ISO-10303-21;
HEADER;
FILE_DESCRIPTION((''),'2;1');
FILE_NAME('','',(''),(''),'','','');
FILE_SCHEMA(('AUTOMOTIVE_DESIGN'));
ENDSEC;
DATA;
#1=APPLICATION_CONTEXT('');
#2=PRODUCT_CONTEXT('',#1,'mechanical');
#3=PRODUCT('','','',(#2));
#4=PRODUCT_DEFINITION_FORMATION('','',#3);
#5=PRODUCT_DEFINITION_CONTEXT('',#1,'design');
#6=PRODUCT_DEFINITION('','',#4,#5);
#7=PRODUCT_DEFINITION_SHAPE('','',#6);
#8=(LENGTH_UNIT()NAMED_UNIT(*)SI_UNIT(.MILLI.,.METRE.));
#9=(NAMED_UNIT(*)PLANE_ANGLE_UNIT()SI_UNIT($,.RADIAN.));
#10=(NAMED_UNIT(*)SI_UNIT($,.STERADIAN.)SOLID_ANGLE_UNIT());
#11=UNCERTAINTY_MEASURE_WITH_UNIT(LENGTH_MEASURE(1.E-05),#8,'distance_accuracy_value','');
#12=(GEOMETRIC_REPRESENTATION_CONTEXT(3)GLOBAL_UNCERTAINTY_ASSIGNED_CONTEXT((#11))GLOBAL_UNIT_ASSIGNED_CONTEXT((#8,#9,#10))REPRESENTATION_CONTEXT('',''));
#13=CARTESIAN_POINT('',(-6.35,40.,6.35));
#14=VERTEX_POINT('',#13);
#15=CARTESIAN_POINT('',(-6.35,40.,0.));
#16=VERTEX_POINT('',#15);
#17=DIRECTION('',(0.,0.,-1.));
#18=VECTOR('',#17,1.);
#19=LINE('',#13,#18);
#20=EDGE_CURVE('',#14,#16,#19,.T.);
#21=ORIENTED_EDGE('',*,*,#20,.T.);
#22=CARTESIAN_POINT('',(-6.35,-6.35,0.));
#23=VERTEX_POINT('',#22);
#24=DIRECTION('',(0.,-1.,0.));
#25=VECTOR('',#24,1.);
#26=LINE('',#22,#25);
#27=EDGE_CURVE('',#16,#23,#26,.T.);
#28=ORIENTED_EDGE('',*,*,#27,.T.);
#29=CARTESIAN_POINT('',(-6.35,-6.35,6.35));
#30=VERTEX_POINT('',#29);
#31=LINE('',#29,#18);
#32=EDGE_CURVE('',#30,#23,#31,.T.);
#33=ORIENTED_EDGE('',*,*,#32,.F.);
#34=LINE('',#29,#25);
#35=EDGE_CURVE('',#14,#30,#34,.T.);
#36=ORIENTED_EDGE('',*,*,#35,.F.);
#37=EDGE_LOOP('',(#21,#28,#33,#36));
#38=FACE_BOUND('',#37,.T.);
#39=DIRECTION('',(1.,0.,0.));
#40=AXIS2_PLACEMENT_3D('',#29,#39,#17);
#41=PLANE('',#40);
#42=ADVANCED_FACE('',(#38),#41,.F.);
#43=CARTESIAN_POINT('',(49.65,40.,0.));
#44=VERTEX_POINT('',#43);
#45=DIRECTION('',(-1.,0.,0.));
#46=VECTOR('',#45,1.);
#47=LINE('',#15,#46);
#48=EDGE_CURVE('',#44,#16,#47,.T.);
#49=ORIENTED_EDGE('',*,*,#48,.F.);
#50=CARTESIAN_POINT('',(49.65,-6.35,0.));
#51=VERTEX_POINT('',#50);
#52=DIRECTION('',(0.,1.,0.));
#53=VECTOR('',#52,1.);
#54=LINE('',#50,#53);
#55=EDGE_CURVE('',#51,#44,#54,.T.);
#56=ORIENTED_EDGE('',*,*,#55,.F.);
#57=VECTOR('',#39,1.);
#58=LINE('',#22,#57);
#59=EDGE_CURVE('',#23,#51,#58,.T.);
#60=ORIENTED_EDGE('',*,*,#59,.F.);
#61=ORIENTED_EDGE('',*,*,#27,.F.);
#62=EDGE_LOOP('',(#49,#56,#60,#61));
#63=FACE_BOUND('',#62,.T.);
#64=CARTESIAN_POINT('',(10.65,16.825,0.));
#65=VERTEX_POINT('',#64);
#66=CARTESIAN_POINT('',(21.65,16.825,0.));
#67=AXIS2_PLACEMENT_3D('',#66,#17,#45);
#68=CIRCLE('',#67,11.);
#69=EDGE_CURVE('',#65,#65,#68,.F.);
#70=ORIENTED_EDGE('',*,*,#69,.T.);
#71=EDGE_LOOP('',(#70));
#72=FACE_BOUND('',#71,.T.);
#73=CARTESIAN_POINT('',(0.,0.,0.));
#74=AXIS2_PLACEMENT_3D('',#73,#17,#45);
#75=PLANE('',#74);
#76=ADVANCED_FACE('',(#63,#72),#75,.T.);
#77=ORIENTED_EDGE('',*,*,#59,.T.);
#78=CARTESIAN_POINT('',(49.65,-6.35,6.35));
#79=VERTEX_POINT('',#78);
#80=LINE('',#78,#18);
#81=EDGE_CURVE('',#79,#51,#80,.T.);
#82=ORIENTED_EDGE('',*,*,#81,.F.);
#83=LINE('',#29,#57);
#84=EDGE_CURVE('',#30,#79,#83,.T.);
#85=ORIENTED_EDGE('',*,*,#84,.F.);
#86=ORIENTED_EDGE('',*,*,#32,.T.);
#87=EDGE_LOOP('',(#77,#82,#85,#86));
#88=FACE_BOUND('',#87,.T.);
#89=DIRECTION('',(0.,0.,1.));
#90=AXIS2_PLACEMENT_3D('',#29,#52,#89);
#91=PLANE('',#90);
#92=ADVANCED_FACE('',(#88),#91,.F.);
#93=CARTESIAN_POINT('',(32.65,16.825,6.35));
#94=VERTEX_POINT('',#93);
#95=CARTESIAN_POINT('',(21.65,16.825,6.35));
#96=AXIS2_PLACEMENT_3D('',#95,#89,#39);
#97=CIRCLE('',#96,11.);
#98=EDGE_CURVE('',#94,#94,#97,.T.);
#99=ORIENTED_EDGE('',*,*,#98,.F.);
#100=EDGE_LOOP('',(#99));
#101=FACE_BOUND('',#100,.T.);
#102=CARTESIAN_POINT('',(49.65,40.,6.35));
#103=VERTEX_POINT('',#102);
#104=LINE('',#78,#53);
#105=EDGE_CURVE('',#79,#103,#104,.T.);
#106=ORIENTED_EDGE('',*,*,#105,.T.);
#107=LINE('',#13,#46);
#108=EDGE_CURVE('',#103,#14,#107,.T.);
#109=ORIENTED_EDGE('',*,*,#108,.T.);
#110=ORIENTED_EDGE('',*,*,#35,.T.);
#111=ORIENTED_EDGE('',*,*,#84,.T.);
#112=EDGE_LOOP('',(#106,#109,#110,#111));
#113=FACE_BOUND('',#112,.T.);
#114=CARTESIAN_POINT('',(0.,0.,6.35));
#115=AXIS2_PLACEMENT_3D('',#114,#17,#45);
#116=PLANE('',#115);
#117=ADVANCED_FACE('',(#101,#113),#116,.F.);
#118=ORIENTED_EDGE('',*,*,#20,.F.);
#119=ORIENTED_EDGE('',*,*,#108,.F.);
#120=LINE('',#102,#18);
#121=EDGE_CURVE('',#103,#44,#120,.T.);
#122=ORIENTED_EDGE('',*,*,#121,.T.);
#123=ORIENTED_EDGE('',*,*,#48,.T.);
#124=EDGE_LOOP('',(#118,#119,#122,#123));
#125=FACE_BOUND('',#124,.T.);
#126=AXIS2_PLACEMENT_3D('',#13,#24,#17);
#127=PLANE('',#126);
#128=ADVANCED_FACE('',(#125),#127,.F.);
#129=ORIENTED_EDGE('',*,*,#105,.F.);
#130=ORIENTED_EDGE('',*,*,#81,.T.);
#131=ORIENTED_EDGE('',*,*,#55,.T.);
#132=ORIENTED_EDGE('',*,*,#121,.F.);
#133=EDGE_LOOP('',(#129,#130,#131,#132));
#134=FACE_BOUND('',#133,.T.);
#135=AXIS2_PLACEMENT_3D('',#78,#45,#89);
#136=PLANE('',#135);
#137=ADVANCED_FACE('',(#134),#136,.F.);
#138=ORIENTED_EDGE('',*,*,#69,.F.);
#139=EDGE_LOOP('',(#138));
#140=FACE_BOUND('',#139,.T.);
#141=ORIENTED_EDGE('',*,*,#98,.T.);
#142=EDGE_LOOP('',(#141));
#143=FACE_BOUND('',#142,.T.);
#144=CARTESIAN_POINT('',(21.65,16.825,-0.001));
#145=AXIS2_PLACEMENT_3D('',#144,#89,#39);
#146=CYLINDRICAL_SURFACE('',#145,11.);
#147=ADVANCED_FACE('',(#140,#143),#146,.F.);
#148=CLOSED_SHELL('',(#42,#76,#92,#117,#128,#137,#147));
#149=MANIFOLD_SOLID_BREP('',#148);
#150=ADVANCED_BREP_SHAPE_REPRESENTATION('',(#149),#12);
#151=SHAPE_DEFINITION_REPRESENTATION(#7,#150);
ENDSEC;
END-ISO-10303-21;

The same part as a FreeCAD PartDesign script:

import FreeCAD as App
import Part
import Sketcher

V = App.Vector


def add_polygon(sketch, points):
    """Adds a closed chain of lines whose ends are joined by coincident constraints."""
    first, n = sketch.GeometryCount, len(points)
    for a, b in zip(points, points[1:] + points[:1]):
        sketch.addGeometry(Part.LineSegment(App.Vector(*a, 0), App.Vector(*b, 0)), False)
    for i in range(n):
        sketch.addConstraint(Sketcher.Constraint("Coincident", first + i, 2, first + (i + 1) % n, 1))

doc = App.newDocument("Part")
params = doc.addObject("Spreadsheet::Sheet", "Params")
for row, (alias, value) in enumerate([
    ("sketch1_width", "56 mm"),
    ("sketch1_height", "46.35 mm"),
    ("pad1_length", "6.35 mm"),
    ("sketch2_diameter", "22 mm"),
], start=1):
    params.set(f"A{row}", alias)
    params.set(f"B{row}", "=" + value)
    params.setAlias(f"B{row}", alias)

body = doc.addObject("PartDesign::Body", "Body")

# Sketch on XY plane
sketch1 = body.newObject("Sketcher::SketchObject", "Sketch")
sketch1.AttachmentSupport = (doc.getObject("XY_Plane"), [""])
sketch1.MapMode = "FlatFace"
add_polygon(sketch1, [(-6.35, 40), (-6.35, -6.35), (49.65, -6.35), (49.65, 40)])  # lines 0-3
sketch1.addConstraint(Sketcher.Constraint("Vertical", 0))
sketch1.addConstraint(Sketcher.Constraint("Horizontal", 1))
sketch1.addConstraint(Sketcher.Constraint("Vertical", 2))
sketch1.addConstraint(Sketcher.Constraint("Horizontal", 3))
sketch1.addConstraint(Sketcher.Constraint("DistanceX", 1, 1, 1, 2, 56.0))
sketch1.addConstraint(Sketcher.Constraint("DistanceY", -1, 1, 2, 2, 40.0))
sketch1.addConstraint(Sketcher.Constraint("DistanceY", 0, 2, 0, 1, 46.35))
sketch1.addConstraint(Sketcher.Constraint("DistanceX", 0, 2, -1, 1, 6.35))
sketch1.setExpression("Constraints[8]", "Params.sketch1_width")
sketch1.setExpression("Constraints[10]", "Params.sketch1_height")
pad1 = body.newObject("PartDesign::Pad", "Pad")
pad1.Profile = sketch1
pad1.setExpression("Length", "Params.pad1_length")

# Sketch on XY plane
sketch2 = body.newObject("Sketcher::SketchObject", "Sketch001")
sketch2.AttachmentSupport = (doc.getObject("XY_Plane"), [""])
sketch2.MapMode = "FlatFace"
sketch2.AttachmentOffset = App.Placement(V(0, 0, 6.35), App.Rotation())
sketch2.addGeometry(Part.Circle(V(21.65, 16.825, 0), V(0, 0, 1), 11), False)
sketch2.addConstraint(Sketcher.Constraint("Diameter", 0, 22.0))
sketch2.addConstraint(Sketcher.Constraint("DistanceX", -1, 1, 0, 3, 21.65))
sketch2.addConstraint(Sketcher.Constraint("DistanceY", -1, 1, 0, 3, 16.825))
sketch2.setExpression("Constraints[0]", "Params.sketch2_diameter")
pocket1 = body.newObject("PartDesign::Pocket", "Pocket")
pocket1.Profile = sketch2
pocket1.Type = "UpToFirst"

doc.recompute()
